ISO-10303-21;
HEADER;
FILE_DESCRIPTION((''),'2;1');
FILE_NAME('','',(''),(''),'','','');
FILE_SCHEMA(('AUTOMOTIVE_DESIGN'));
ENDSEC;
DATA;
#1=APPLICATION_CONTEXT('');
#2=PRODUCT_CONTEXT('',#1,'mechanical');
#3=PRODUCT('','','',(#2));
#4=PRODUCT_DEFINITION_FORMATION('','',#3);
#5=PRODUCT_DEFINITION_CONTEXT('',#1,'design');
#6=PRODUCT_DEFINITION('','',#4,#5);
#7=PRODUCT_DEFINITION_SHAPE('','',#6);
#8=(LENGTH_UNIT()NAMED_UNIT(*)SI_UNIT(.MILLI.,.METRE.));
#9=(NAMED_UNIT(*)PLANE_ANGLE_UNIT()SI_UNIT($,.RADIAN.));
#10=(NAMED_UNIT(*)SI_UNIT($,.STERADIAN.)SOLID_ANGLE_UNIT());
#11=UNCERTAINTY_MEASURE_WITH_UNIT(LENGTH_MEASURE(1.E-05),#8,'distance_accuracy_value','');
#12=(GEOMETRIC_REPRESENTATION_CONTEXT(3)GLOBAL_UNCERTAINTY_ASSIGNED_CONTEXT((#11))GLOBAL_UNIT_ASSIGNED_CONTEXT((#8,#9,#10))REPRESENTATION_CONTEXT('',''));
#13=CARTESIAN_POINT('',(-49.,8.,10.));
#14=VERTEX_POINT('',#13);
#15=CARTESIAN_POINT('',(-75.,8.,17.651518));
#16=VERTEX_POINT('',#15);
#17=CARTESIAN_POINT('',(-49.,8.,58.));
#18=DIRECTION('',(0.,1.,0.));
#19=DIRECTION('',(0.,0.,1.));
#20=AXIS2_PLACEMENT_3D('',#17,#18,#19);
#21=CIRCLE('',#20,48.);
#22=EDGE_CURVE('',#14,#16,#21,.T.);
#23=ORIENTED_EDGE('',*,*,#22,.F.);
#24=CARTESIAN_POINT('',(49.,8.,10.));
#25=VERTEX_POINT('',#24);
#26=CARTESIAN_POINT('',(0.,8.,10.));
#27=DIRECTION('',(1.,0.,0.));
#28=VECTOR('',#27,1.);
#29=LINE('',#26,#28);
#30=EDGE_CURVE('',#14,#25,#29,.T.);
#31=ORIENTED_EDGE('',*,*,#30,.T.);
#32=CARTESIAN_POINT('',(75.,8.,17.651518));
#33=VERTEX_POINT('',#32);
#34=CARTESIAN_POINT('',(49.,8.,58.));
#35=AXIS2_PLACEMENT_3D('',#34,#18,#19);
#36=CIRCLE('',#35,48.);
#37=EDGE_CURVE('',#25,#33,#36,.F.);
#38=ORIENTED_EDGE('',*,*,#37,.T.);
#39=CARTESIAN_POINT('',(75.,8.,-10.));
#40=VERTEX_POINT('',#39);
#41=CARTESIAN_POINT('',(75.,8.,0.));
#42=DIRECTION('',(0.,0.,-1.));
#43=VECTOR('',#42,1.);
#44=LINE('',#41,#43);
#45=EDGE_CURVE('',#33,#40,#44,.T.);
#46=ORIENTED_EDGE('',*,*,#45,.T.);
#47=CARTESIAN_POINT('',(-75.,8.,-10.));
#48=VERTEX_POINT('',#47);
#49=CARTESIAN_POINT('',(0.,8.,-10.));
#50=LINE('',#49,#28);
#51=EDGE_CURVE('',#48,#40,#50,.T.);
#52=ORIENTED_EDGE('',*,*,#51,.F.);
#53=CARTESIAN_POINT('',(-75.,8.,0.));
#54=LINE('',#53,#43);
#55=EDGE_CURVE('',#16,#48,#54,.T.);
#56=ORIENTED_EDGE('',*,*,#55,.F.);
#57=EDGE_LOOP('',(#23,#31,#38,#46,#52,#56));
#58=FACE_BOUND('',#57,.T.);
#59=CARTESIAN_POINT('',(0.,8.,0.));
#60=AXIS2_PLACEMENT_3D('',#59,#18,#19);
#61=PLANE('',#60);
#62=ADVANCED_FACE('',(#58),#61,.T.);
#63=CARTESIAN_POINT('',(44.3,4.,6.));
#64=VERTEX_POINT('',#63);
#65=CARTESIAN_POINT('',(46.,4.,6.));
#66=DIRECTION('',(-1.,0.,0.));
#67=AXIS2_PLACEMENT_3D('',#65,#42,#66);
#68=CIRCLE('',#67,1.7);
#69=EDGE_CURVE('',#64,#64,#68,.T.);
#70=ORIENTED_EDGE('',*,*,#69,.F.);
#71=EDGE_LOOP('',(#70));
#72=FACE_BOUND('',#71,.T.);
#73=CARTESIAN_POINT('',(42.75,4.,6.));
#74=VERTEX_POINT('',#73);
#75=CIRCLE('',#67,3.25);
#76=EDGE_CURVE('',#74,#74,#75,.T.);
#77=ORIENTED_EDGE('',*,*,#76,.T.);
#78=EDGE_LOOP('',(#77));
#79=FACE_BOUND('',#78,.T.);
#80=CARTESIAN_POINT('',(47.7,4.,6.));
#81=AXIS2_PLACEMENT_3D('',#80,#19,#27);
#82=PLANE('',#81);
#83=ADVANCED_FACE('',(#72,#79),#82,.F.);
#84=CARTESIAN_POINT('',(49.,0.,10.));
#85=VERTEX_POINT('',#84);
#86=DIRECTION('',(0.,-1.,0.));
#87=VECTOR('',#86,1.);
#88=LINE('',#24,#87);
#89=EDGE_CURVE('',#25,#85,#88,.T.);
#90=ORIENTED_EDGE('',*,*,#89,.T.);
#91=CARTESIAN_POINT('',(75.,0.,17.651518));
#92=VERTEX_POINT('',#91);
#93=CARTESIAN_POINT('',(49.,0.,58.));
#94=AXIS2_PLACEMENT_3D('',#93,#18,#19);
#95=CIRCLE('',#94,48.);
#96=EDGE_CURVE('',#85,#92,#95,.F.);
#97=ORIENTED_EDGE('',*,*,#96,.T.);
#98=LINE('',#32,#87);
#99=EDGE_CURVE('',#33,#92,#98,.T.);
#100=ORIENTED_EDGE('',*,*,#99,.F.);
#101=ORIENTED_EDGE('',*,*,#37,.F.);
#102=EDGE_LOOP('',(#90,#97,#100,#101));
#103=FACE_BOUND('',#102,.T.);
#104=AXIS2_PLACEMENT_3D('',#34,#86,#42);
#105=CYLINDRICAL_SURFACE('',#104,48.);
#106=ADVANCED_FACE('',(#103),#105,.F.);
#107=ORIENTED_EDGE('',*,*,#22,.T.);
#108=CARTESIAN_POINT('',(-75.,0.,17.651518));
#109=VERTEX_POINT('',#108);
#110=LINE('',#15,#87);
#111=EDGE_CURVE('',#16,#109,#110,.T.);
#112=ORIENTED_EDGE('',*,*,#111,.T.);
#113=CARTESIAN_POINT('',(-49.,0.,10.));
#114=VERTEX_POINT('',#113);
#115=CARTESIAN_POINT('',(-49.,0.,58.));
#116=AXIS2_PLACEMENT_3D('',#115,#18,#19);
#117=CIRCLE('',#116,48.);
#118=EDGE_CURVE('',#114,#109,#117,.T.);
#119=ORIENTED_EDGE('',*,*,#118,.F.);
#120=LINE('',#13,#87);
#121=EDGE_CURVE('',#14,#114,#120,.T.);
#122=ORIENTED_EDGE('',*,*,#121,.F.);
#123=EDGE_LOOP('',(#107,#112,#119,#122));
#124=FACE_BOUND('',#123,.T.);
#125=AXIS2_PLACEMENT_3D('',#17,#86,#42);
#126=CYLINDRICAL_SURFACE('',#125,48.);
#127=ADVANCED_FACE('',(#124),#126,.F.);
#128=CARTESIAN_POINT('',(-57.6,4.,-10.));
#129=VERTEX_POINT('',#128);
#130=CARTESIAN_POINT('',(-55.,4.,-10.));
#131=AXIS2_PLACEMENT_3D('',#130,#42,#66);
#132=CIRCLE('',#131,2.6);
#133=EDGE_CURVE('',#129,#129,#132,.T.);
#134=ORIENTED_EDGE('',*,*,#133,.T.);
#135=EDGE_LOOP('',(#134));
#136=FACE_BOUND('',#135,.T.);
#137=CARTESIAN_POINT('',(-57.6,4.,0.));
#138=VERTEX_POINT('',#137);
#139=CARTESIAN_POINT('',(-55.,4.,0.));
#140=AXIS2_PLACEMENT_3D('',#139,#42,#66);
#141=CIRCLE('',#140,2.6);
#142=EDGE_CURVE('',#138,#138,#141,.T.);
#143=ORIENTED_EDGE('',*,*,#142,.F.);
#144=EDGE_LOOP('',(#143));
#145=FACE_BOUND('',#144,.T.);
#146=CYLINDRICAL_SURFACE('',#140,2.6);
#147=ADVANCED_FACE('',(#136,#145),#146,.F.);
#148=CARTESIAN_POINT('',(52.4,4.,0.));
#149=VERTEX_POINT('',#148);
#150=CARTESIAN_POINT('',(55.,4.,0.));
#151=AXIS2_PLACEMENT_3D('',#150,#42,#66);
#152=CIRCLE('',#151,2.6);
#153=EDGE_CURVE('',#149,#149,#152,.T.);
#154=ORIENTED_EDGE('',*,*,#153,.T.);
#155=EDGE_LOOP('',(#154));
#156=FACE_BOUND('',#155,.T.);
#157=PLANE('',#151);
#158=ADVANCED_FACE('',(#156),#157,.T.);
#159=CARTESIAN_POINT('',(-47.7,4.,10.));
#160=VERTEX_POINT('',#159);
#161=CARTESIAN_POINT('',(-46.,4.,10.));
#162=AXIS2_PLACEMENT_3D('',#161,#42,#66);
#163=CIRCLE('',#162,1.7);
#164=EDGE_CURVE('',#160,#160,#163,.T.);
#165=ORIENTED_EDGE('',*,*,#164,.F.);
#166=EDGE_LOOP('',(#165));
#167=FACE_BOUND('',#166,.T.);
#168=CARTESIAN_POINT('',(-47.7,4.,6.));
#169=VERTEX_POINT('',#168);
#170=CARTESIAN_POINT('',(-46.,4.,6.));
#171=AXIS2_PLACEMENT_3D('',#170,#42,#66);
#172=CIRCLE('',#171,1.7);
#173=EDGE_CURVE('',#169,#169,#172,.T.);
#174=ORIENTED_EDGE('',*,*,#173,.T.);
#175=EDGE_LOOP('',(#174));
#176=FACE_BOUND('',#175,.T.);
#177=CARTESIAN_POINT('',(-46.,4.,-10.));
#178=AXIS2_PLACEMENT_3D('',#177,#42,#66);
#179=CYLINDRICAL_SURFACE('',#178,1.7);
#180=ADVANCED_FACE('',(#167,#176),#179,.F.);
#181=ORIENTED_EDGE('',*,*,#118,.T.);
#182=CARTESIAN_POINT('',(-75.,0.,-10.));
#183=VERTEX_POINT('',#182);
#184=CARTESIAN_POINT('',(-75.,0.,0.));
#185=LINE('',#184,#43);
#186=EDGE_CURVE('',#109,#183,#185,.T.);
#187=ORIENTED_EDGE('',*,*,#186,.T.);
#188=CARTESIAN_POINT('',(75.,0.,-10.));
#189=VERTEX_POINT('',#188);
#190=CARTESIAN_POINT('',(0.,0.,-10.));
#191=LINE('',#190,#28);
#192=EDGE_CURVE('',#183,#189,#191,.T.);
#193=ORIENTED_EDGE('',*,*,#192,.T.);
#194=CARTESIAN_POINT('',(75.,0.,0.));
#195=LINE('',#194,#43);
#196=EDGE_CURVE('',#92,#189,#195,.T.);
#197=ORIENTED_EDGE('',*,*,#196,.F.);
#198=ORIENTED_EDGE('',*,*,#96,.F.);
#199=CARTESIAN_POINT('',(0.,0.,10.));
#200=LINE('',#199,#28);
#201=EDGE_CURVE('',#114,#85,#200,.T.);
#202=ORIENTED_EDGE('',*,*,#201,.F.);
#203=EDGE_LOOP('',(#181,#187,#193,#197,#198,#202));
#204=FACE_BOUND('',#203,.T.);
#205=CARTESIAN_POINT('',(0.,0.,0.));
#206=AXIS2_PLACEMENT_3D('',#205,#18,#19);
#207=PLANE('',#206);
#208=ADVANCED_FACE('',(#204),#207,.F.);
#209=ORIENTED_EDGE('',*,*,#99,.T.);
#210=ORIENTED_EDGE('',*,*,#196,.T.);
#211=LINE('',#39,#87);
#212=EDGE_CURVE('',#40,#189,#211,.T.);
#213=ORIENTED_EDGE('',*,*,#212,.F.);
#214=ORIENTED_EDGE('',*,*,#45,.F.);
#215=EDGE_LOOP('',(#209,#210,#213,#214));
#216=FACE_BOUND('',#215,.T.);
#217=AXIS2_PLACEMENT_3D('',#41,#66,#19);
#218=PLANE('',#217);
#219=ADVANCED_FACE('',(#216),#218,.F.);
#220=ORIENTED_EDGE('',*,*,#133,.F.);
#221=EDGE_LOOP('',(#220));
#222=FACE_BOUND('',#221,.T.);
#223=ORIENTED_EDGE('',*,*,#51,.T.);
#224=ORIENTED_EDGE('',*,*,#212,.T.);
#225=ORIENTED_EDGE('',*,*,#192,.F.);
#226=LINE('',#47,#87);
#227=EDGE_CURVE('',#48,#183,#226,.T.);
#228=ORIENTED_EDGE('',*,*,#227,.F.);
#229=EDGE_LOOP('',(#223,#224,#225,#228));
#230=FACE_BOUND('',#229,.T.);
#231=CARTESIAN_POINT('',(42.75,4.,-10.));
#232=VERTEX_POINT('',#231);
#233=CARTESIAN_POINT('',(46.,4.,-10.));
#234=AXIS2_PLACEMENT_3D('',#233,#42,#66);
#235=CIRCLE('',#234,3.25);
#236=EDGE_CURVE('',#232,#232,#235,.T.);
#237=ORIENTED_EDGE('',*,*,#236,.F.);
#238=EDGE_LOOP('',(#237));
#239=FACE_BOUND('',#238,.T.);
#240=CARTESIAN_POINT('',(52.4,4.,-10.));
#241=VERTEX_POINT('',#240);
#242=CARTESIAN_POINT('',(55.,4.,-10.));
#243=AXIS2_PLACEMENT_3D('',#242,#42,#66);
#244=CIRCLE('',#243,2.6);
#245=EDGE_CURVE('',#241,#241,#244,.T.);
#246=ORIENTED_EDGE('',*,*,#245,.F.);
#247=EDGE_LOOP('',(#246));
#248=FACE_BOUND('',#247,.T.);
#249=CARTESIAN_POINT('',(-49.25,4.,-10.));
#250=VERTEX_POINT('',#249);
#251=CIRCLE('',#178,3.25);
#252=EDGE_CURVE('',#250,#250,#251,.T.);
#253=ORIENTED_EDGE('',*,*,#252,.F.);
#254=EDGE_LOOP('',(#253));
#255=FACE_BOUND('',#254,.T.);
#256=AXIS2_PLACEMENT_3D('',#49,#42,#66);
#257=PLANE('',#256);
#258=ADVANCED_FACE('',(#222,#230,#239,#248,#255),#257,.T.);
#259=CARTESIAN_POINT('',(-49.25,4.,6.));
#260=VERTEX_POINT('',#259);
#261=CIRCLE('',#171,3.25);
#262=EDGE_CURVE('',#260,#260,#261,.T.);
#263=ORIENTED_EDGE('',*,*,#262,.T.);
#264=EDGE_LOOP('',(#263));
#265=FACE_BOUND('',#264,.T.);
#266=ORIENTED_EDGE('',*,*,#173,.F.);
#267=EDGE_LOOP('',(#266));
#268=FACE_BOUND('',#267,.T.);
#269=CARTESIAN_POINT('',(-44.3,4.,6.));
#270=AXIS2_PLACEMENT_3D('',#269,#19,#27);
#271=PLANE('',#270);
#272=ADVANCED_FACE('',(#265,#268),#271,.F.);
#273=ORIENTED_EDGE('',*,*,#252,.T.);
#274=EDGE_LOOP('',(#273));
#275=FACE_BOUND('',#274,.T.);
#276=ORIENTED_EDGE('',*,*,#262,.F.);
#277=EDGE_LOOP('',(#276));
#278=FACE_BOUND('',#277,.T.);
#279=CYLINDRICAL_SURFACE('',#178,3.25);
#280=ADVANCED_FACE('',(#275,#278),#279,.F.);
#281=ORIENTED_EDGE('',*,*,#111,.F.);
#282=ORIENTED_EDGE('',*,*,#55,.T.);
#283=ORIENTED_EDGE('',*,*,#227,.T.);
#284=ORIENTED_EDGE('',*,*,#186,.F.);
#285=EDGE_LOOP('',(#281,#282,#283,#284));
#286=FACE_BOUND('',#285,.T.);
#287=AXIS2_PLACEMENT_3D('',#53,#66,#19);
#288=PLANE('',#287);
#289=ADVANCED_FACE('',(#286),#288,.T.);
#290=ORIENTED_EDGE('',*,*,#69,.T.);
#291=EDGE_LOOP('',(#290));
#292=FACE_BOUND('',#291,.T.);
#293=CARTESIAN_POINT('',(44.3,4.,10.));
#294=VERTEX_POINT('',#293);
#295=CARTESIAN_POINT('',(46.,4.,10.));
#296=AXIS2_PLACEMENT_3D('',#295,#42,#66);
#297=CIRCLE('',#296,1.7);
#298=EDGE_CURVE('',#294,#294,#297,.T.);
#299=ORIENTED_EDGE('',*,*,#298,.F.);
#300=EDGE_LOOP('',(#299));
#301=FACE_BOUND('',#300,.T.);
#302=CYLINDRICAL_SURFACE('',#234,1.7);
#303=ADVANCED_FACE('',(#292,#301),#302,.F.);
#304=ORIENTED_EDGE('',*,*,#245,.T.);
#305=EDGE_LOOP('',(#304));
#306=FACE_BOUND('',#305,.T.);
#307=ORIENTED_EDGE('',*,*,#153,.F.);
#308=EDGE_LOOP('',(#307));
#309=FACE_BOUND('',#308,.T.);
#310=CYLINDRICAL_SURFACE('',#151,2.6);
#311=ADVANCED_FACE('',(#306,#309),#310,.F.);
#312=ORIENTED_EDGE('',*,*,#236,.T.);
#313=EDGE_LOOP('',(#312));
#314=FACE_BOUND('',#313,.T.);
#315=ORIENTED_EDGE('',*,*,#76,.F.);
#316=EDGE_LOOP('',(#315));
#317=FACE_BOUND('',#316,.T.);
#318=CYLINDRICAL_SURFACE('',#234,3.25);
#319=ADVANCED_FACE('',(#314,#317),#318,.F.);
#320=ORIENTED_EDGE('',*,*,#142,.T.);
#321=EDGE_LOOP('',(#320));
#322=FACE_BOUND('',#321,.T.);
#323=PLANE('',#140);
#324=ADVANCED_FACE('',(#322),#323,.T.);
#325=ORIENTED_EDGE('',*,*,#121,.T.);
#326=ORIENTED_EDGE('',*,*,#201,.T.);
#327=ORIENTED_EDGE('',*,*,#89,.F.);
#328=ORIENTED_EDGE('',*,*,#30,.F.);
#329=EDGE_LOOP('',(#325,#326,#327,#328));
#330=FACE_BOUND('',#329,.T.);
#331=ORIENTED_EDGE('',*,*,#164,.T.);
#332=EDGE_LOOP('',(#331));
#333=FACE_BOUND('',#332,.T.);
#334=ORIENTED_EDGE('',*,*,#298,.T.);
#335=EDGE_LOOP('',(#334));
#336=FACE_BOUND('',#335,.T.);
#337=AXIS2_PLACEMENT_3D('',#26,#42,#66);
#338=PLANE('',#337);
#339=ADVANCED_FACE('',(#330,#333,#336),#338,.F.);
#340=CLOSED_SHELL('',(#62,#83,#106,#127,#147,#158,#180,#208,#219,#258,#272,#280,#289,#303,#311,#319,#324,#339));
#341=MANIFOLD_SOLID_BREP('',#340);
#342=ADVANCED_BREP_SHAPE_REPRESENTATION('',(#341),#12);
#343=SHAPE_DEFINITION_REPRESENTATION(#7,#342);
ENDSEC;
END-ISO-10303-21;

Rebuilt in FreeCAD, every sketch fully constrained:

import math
import FreeCAD as App
import Part
import Sketcher
from FreeCAD import Vector
Q = App.Units.Quantity

doc = App.newDocument("Part")
body = doc.addObject("PartDesign::Body", "Body")

# Sketch on XZ plane
sketch1 = doc.addObject("Sketcher::SketchObject", "Sketch")
body.addObject(sketch1)
sketch1.AttachmentSupport = (doc.XZ_Plane, [""])
sketch1.MapMode = "FlatFace"
sketch1.addGeometry(Part.LineSegment(Vector(-49, 10, 0), Vector(49, 10, 0)), False)
sketch1.addGeometry(Part.ArcOfCircle(Part.Circle(Vector(49, 58, 0), Vector(0, 0, 1), 48), math.radians(-90), math.radians(-57.202832)), False)
sketch1.addGeometry(Part.LineSegment(Vector(75, 17.651518, 0), Vector(75, -10, 0)), False)
sketch1.addGeometry(Part.LineSegment(Vector(75, -10, 0), Vector(-75, -10, 0)), False)
sketch1.addGeometry(Part.LineSegment(Vector(-75, -10, 0), Vector(-75, 17.651518, 0)), False)
sketch1.addGeometry(Part.ArcOfCircle(Part.Circle(Vector(-49, 58, 0), Vector(0, 0, 1), 48), math.radians(-122.797168), math.radians(-90)), False)
sketch1.addConstraint(Sketcher.Constraint("Tangent", 0, 2, 1, 1))
sketch1.addConstraint(Sketcher.Constraint("Coincident", 1, 2, 2, 1))
sketch1.addConstraint(Sketcher.Constraint("Coincident", 2, 2, 3, 1))
sketch1.addConstraint(Sketcher.Constraint("Coincident", 3, 2, 4, 1))
sketch1.addConstraint(Sketcher.Constraint("Coincident", 4, 2, 5, 1))
sketch1.addConstraint(Sketcher.Constraint("Tangent", 5, 2, 0, 1))
sketch1.addConstraint(Sketcher.Constraint("Horizontal", 0))
sketch1.addConstraint(Sketcher.Constraint("Vertical", 2))
sketch1.addConstraint(Sketcher.Constraint("Horizontal", 3))
sketch1.addConstraint(Sketcher.Constraint("Vertical", 4))
sketch1.addConstraint(Sketcher.Constraint("Equal", 1, 5))
sketch1.addConstraint(Sketcher.Constraint("Symmetric", 1, 2, 4, 2, -2))
sketch1.addConstraint(Sketcher.Constraint("Radius", 1, Q("48 mm")))
sketch1.addConstraint(Sketcher.Constraint("DistanceX", 0, 1, 0, 2, Q("98 mm")))
sketch1.addConstraint(Sketcher.Constraint("DistanceX", 3, 2, 3, 1, Q("150 mm")))
sketch1.addConstraint(Sketcher.Constraint("DistanceY", -1, 1, 1, 3, Q("58 mm")))
sketch1.addConstraint(Sketcher.Constraint("DistanceY", 2, 2, -1, 1, Q("10 mm")))
pad1 = doc.addObject("PartDesign::Pad", "Pad")
body.addObject(pad1)
pad1.Profile = sketch1
pad1.Length = 8
pad1.Reversed = True

# Sketch on XY plane
sketch2 = doc.addObject("Sketcher::SketchObject", "Sketch001")
body.addObject(sketch2)
sketch2.AttachmentSupport = (doc.XY_Plane, [""])
sketch2.MapMode = "FlatFace"
sketch2.AttachmentOffset = App.Placement(Vector(0, 0, -10), App.Rotation())
sketch2.addGeometry(Part.Circle(Vector(46, 4, 0), Vector(0, 0, 1), 1.7), False)
sketch2.addGeometry(Part.Circle(Vector(-46, 4, 0), Vector(0, 0, 1), 1.7), False)
sketch2.addConstraint(Sketcher.Constraint("Equal", 0, 1))
sketch2.addConstraint(Sketcher.Constraint("Symmetric", 0, 3, 1, 3, -2))
sketch2.addConstraint(Sketcher.Constraint("Diameter", 0, Q("3.4 mm")))
sketch2.addConstraint(Sketcher.Constraint("DistanceX", -1, 1, 0, 3, Q("46 mm")))
sketch2.addConstraint(Sketcher.Constraint("DistanceY", -1, 1, 0, 3, Q("4 mm")))
doc.recompute()
hole = doc.addObject("PartDesign::Hole", "Hole")
body.addObject(hole)
hole.Profile = sketch2
hole.ThreadType = "None"
hole.Diameter = 3.4
hole.DepthType = "ThroughAll"
hole.HoleCutType = "Counterbore"
hole.HoleCutDiameter = 6.5
hole.HoleCutDepth = 16
hole.Reversed = True

# Sketch on XY plane
sketch3 = doc.addObject("Sketcher::SketchObject", "Sketch002")
body.addObject(sketch3)
sketch3.AttachmentSupport = (doc.XY_Plane, [""])
sketch3.MapMode = "FlatFace"
sketch3.AttachmentOffset = App.Placement(Vector(0, 0, -10), App.Rotation())
sketch3.addGeometry(Part.Circle(Vector(55, 4, 0), Vector(0, 0, 1), 2.6), False)
sketch3.addGeometry(Part.Circle(Vector(-55, 4, 0), Vector(0, 0, 1), 2.6), False)
sketch3.addConstraint(Sketcher.Constraint("Equal", 0, 1))
sketch3.addConstraint(Sketcher.Constraint("Symmetric", 0, 3, 1, 3, -2))
sketch3.addConstraint(Sketcher.Constraint("Diameter", 0, Q("5.2 mm")))
sketch3.addConstraint(Sketcher.Constraint("DistanceX", -1, 1, 0, 3, Q("55 mm")))
sketch3.addConstraint(Sketcher.Constraint("DistanceY", -1, 1, 0, 3, Q("4 mm")))
pocket1 = doc.addObject("PartDesign::Pocket", "Pocket")
body.addObject(pocket1)
pocket1.Profile = sketch3
pocket1.Length = 10
pocket1.Reversed = True

doc.recompute()
